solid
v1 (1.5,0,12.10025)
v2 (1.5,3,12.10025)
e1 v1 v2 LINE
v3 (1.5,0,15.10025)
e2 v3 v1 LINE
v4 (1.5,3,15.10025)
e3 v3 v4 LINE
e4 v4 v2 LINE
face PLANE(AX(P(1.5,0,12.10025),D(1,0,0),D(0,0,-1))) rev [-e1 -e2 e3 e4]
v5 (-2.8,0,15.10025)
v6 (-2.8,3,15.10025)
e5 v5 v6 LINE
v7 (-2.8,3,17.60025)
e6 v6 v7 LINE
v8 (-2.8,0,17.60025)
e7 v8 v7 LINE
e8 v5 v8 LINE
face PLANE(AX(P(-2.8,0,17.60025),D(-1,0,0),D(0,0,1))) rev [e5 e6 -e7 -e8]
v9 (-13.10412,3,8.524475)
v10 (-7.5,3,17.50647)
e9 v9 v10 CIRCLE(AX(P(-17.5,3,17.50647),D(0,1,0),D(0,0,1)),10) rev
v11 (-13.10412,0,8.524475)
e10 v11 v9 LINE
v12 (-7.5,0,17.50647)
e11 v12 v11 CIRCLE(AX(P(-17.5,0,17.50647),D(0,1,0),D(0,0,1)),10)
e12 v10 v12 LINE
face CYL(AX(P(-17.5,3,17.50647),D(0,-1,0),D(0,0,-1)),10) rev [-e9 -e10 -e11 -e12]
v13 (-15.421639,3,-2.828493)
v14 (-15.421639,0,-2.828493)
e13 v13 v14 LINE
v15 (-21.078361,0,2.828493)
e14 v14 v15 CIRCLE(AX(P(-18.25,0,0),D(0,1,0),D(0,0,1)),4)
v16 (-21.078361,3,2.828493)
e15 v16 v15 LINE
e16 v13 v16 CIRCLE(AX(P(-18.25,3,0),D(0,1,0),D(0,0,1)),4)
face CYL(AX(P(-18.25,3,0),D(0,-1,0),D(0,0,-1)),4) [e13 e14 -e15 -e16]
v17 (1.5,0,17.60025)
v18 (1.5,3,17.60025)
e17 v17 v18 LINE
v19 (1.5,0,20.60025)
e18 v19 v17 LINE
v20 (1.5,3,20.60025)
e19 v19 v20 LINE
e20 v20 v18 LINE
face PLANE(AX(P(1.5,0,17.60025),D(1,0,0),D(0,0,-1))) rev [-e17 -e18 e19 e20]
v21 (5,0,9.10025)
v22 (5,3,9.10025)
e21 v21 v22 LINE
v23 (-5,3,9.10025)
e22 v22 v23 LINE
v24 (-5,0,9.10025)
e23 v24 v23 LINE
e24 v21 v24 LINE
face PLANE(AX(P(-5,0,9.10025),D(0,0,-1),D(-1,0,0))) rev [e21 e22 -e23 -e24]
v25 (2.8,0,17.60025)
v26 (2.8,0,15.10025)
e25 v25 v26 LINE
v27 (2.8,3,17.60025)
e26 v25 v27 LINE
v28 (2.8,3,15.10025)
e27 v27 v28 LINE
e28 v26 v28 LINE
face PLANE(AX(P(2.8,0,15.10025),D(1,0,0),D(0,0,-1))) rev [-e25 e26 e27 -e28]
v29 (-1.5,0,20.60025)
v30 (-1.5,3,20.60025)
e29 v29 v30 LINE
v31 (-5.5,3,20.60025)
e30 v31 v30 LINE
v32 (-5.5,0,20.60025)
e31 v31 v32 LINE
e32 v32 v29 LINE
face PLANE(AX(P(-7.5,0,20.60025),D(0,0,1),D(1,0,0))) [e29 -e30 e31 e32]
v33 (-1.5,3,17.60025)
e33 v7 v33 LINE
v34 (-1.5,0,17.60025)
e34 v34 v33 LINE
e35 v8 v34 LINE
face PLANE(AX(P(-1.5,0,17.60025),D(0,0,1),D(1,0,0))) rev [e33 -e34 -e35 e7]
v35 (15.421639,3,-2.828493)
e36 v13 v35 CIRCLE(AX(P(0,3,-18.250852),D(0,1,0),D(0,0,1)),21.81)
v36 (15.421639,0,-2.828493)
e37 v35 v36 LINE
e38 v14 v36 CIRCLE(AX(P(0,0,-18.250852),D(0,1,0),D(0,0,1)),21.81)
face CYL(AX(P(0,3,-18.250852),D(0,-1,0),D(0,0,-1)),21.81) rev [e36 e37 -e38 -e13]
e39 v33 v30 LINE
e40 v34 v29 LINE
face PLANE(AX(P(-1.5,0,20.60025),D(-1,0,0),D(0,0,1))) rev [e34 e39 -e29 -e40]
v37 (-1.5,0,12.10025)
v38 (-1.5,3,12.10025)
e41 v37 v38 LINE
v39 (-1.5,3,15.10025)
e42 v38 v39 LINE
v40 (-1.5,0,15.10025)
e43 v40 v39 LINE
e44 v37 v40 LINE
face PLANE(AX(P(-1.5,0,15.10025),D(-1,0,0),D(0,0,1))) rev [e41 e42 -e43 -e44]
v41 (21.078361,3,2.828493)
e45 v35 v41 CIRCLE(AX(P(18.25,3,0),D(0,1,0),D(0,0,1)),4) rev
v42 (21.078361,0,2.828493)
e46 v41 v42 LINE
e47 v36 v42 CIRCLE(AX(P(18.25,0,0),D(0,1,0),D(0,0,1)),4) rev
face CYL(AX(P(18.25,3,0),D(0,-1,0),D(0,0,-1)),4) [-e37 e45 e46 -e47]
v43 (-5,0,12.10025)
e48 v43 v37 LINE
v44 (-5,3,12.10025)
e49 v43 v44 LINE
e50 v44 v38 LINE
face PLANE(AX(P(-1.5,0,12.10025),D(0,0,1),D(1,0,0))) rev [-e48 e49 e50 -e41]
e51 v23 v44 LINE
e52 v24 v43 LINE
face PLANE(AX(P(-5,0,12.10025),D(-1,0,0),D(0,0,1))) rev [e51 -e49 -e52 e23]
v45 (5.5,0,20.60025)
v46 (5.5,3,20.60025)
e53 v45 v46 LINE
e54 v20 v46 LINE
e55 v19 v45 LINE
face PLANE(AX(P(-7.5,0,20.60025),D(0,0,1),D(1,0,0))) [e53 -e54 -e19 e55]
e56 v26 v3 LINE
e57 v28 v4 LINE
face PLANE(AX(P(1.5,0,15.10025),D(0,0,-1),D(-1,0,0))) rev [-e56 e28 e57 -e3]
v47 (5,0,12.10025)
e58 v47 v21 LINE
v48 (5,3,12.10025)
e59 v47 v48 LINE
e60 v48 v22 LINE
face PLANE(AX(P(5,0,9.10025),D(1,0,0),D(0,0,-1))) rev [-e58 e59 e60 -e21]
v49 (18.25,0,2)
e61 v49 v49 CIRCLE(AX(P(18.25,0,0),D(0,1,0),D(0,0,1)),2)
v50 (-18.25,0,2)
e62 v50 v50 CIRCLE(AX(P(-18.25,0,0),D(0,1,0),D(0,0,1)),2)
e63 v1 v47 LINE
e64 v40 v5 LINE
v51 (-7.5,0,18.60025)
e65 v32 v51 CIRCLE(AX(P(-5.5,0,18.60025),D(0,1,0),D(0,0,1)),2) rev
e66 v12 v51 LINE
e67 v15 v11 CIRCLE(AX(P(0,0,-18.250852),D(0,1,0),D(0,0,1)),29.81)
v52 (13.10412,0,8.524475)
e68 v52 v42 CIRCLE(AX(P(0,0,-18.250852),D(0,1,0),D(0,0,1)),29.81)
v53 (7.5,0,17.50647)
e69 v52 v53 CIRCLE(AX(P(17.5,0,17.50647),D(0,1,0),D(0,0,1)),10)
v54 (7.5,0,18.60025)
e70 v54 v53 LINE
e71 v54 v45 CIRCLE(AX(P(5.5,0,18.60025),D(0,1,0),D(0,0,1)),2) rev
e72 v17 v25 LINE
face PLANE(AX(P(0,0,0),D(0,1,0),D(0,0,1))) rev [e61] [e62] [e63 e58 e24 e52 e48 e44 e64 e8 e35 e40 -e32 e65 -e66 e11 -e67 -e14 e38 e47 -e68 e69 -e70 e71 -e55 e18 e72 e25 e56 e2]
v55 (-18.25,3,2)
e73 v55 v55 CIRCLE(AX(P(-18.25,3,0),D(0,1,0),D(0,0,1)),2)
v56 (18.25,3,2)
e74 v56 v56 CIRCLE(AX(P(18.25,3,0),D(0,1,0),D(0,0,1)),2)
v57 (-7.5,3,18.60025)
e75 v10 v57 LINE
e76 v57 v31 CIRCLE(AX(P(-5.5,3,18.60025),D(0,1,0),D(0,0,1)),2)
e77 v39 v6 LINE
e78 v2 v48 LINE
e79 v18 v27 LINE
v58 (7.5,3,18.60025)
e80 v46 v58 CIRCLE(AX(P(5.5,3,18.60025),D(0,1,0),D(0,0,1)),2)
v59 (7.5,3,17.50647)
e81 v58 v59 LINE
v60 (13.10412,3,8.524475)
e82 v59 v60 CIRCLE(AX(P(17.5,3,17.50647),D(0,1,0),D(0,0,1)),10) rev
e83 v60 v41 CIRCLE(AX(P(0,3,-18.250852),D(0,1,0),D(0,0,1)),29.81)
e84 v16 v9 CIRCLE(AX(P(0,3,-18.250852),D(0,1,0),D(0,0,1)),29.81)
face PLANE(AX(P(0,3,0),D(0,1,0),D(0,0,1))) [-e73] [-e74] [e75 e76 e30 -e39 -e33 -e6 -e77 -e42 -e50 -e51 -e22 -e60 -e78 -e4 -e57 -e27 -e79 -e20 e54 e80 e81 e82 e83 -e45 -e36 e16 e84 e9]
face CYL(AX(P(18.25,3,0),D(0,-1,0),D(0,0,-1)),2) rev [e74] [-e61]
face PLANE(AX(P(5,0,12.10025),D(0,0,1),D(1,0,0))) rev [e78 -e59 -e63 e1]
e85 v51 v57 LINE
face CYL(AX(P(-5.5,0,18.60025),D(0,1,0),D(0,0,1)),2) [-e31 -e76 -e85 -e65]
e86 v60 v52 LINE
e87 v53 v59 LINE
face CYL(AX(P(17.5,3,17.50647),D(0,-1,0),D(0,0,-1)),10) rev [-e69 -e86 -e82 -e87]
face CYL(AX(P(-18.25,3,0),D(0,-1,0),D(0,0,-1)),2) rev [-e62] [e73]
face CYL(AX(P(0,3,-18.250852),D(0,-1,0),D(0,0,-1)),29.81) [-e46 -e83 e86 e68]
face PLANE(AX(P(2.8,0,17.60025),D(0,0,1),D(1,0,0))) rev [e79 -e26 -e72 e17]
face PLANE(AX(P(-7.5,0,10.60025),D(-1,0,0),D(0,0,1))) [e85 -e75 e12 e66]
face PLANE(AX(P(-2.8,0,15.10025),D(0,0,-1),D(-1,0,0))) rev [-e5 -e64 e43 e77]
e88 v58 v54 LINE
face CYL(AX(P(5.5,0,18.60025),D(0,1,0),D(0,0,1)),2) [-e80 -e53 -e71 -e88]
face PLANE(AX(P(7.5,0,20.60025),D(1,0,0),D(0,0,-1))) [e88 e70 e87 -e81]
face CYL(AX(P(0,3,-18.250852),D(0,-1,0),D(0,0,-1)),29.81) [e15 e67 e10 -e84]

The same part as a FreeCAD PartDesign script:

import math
import FreeCAD as App
import Part
import Sketcher
from FreeCAD import Vector
Q = App.Units.Quantity


def edges_at(feature, points):
    """Names of the edges that pass closest to the given points."""
    edges = feature.Shape.Edges
    near = lambda p: min(range(len(edges)), key=lambda i: edges[i].distToShape(Part.Vertex(*p))[0])
    return sorted({f"Edge{near(p) + 1}" for p in points})


def add_polygon(sketch, points):
    """Adds a closed chain of lines whose ends are joined by coincident constraints."""
    first, n = sketch.GeometryCount, len(points)
    for a, b in zip(points, points[1:] + points[:1]):
        sketch.addGeometry(Part.LineSegment(App.Vector(*a, 0), App.Vector(*b, 0)), False)
    for i in range(n):
        sketch.addConstraint(Sketcher.Constraint("Coincident", first + i, 2, first + (i + 1) % n, 1))

doc = App.newDocument("Part")
params = doc.addObject("Spreadsheet::Sheet", "Params")
for row, (alias, value) in enumerate([
    ("sketch1_diameter", "4 mm"),
    ("sketch1_radius", "4 mm"),
    ("sketch1_radius2", "21.81 mm"),
    ("pad1_length", "3 mm"),
    ("sketch2_width", "15 mm"),
    ("sketch2_height", "10 mm"),
    ("sketch2_radius", "29.81 mm"),
    ("pad2_length", "3 mm"),
    ("sketch3_width", "3 mm"),
    ("sketch3_width2", "10 mm"),
    ("sketch3_width3", "1.3 mm"),
    ("sketch3_height", "2.5 mm"),
    ("pocket1_length", "3 mm"),
    ("fillet_radius", "10 mm"),
    ("fillet2_radius", "2 mm"),
], start=1):
    params.set(f"A{row}", alias)
    params.set(f"B{row}", "=" + value)
    params.setAlias(f"B{row}", alias)

body = doc.addObject("PartDesign::Body", "Body")

# Sketch on XZ plane
sketch1 = doc.addObject("Sketcher::SketchObject", "Sketch")
body.addObject(sketch1)
sketch1.AttachmentSupport = (doc.XZ_Plane, [""])
sketch1.MapMode = "FlatFace"
sketch1.addGeometry(Part.ArcOfCircle(Part.Circle(Vector(18.25, 0, 0), Vector(0, 0, 1), 4), math.radians(-134.998663), math.radians(45.001337)), False)
sketch1.addGeometry(Part.ArcOfCircle(Part.Circle(Vector(0, -18.250852, 0), Vector(0, 0, 1), 21.81), math.radians(45.001337), math.radians(134.998663)), False)
sketch1.addGeometry(Part.ArcOfCircle(Part.Circle(Vector(-18.25, 0, 0), Vector(0, 0, 1), 4), math.radians(134.998663), math.radians(314.998663)), False)
sketch1.addGeometry(Part.ArcOfCircle(Part.Circle(Vector(0, -18.250852, 0), Vector(0, 0, 1), 29.81), math.radians(45.001337), math.radians(134.998663)), False)
sketch1.addGeometry(Part.Circle(Vector(18.25, 0, 0), Vector(0, 0, 1), 2), False)
sketch1.addGeometry(Part.Circle(Vector(-18.25, 0, 0), Vector(0, 0, 1), 2), False)
sketch1.addConstraint(Sketcher.Constraint("Tangent", 0, 1, 1, 1))
sketch1.addConstraint(Sketcher.Constraint("Tangent", 1, 2, 2, 2))
sketch1.addConstraint(Sketcher.Constraint("Tangent", 2, 1, 3, 2))
sketch1.addConstraint(Sketcher.Constraint("Tangent", 3, 1, 0, 2))
sketch1.addConstraint(Sketcher.Constraint("Coincident", 3, 3, 1, 3))
sketch1.addConstraint(Sketcher.Constraint("Coincident", 4, 3, 0, 3))
sketch1.addConstraint(Sketcher.Constraint("Coincident", 5, 3, 2, 3))
sketch1.addConstraint(Sketcher.Constraint("Equal", 4, 5))
sketch1.addConstraint(Sketcher.Constraint("Symmetric", 0, 3, 2, 3, -1, 1))
sketch1.addConstraint(Sketcher.Constraint("PointOnObject", 0, 3, -1))
sketch1.addConstraint(Sketcher.Constraint("Diameter", 4, Q("4 mm")))
sketch1.addConstraint(Sketcher.Constraint("Radius", 0, Q("4 mm")))
sketch1.addConstraint(Sketcher.Constraint("Radius", 1, Q("21.81 mm")))
sketch1.addConstraint(Sketcher.Constraint("DistanceX", 2, 3, 0, 3, Q("36.5 mm")))
sketch1.setExpression("Constraints[10]", "Params.sketch1_diameter")
sketch1.setExpression("Constraints[11]", "Params.sketch1_radius")
sketch1.setExpression("Constraints[12]", "Params.sketch1_radius2")
pad1 = doc.addObject("PartDesign::Pad", "Pad")
body.addObject(pad1)
pad1.Profile = sketch1
pad1.setExpression("Length", "Params.pad1_length")
pad1.Reversed = True

# Sketch on XZ plane
sketch2 = doc.addObject("Sketcher::SketchObject", "Sketch001")
body.addObject(sketch2)
sketch2.AttachmentSupport = (doc.XZ_Plane, [""])
sketch2.MapMode = "FlatFace"
sketch2.AttachmentOffset = App.Placement(Vector(0, 0, -3), App.Rotation())
sketch2.addGeometry(Part.LineSegment(Vector(-7.5, 10.60025, 0), Vector(-7.5, 20.60025, 0)), False)
sketch2.addGeometry(Part.LineSegment(Vector(-7.5, 20.60025, 0), Vector(7.5, 20.60025, 0)), False)
sketch2.addGeometry(Part.LineSegment(Vector(7.5, 20.60025, 0), Vector(7.5, 10.60025, 0)), False)
sketch2.addGeometry(Part.ArcOfCircle(Part.Circle(Vector(0, -18.250852, 0), Vector(0, 0, 1), 29.81), math.radians(75.428177), math.radians(104.571823)), False)
sketch2.addConstraint(Sketcher.Constraint("Coincident", 0, 2, 1, 1))
sketch2.addConstraint(Sketcher.Constraint("Coincident", 1, 2, 2, 1))
sketch2.addConstraint(Sketcher.Constraint("Coincident", 2, 2, 3, 1))
sketch2.addConstraint(Sketcher.Constraint("Coincident", 3, 2, 0, 1))
sketch2.addConstraint(Sketcher.Constraint("Vertical", 0))
sketch2.addConstraint(Sketcher.Constraint("Horizontal", 1))
sketch2.addConstraint(Sketcher.Constraint("Vertical", 2))
sketch2.addConstraint(Sketcher.Constraint("Symmetric", 2, 2, 3, 2, -2))
sketch2.addConstraint(Sketcher.Constraint("DistanceX", 1, 1, 1, 2, Q("15 mm")))
sketch2.addConstraint(Sketcher.Constraint("DistanceY", 0, 1, 0, 2, Q("10 mm")))
sketch2.addConstraint(Sketcher.Constraint("Radius", 3, Q("29.81 mm")))
sketch2.addConstraint(Sketcher.Constraint("DistanceY", -1, 1, 0, 2, Q("20.60025 mm")))
sketch2.setExpression("Constraints[8]", "Params.sketch2_width")
sketch2.setExpression("Constraints[9]", "Params.sketch2_height")
sketch2.setExpression("Constraints[10]", "Params.sketch2_radius")
pad2 = doc.addObject("PartDesign::Pad", "Pad001")
body.addObject(pad2)
pad2.Profile = sketch2
pad2.setExpression("Length", "Params.pad2_length")

# Sketch on XZ plane
sketch3 = doc.addObject("Sketcher::SketchObject", "Sketch002")
body.addObject(sketch3)
sketch3.AttachmentSupport = (doc.XZ_Plane, [""])
sketch3.MapMode = "FlatFace"
sketch3.AttachmentOffset = App.Placement(Vector(0, 0, -3), App.Rotation())
add_polygon(sketch3, [(-1.5, 17.60025), (-1.5, 20.60025), (1.5, 20.60025), (1.5, 17.60025), (2.8, 17.60025), (2.8, 15.10025), (1.5, 15.10025), (1.5, 12.10025), (5, 12.10025), (5, 9.10025), (-5, 9.10025), (-5, 12.10025), (-1.5, 12.10025), (-1.5, 15.10025), (-2.8, 15.10025), (-2.8, 17.60025)])  # lines 0-15
sketch3.addConstraint(Sketcher.Constraint("Vertical", 0))
sketch3.addConstraint(Sketcher.Constraint("Horizontal", 1))
sketch3.addConstraint(Sketcher.Constraint("Vertical", 2))
sketch3.addConstraint(Sketcher.Constraint("Horizontal", 3))
sketch3.addConstraint(Sketcher.Constraint("Vertical", 4))
sketch3.addConstraint(Sketcher.Constraint("Horizontal", 5))
sketch3.addConstraint(Sketcher.Constraint("Vertical", 6))
sketch3.addConstraint(Sketcher.Constraint("Horizontal", 7))
sketch3.addConstraint(Sketcher.Constraint("Vertical", 8))
sketch3.addConstraint(Sketcher.Constraint("Horizontal", 9))
sketch3.addConstraint(Sketcher.Constraint("Vertical", 10))
sketch3.addConstraint(Sketcher.Constraint("Horizontal", 11))
sketch3.addConstraint(Sketcher.Constraint("Vertical", 12))
sketch3.addConstraint(Sketcher.Constraint("Horizontal", 13))
sketch3.addConstraint(Sketcher.Constraint("Vertical", 14))
sketch3.addConstraint(Sketcher.Constraint("Horizontal", 15))
sketch3.addConstraint(Sketcher.Constraint("Symmetric", 7, 2, 10, 2, -2))
sketch3.addConstraint(Sketcher.Constraint("Symmetric", 5, 2, 12, 2, -2))
sketch3.addConstraint(Sketcher.Constraint("Symmetric", 3, 2, 14, 2, -2))
sketch3.addConstraint(Sketcher.Constraint("Vertical", 2, 2, 5, 2))
sketch3.addConstraint(Sketcher.Constraint("Vertical", 0, 2, 11, 2))
sketch3.addConstraint(Sketcher.Constraint("Equal", 1, 0))
sketch3.addConstraint(Sketcher.Constraint("Equal", 2, 6))
sketch3.addConstraint(Sketcher.Constraint("Equal", 6, 8))
sketch3.addConstraint(Sketcher.Constraint("DistanceX", 1, 1, 1, 2, Q("3 mm")))
sketch3.addConstraint(Sketcher.Constraint("DistanceX", 9, 2, 9, 1, Q("10 mm")))
sketch3.addConstraint(Sketcher.Constraint("DistanceX", 3, 1, 3, 2, Q("1.3 mm")))
sketch3.addConstraint(Sketcher.Constraint("DistanceY", 4, 2, 4, 1, Q("2.5 mm")))
sketch3.addConstraint(Sketcher.Constraint("DistanceY", -1, 1, 0, 2, Q("20.60025 mm")))
sketch3.setExpression("Constraints[40]", "Params.sketch3_width")
sketch3.setExpression("Constraints[41]", "Params.sketch3_width2")
sketch3.setExpression("Constraints[42]", "Params.sketch3_width3")
sketch3.setExpression("Constraints[43]", "Params.sketch3_height")
pocket1 = doc.addObject("PartDesign::Pocket", "Pocket")
body.addObject(pocket1)
pocket1.Profile = sketch3
pocket1.setExpression("Length", "Params.pocket1_length")
pocket1.Reversed = True
doc.recompute()

fillet = doc.addObject("PartDesign::Fillet", "Fillet")
body.addObject(fillet)
fillet.Base = (pocket1, edges_at(pocket1, [(-7.5, 1.5, 10.6), (7.5, 1.5, 10.6)]))
fillet.setExpression("Radius", "Params.fillet_radius")
doc.recompute()

fillet2 = doc.addObject("PartDesign::Fillet", "Fillet001")
body.addObject(fillet2)
fillet2.Base = (fillet, edges_at(fillet, [(7.5, 1.5, 20.6), (-7.5, 1.5, 20.6)]))
fillet2.setExpression("Radius", "Params.fillet2_radius")

doc.recompute()
